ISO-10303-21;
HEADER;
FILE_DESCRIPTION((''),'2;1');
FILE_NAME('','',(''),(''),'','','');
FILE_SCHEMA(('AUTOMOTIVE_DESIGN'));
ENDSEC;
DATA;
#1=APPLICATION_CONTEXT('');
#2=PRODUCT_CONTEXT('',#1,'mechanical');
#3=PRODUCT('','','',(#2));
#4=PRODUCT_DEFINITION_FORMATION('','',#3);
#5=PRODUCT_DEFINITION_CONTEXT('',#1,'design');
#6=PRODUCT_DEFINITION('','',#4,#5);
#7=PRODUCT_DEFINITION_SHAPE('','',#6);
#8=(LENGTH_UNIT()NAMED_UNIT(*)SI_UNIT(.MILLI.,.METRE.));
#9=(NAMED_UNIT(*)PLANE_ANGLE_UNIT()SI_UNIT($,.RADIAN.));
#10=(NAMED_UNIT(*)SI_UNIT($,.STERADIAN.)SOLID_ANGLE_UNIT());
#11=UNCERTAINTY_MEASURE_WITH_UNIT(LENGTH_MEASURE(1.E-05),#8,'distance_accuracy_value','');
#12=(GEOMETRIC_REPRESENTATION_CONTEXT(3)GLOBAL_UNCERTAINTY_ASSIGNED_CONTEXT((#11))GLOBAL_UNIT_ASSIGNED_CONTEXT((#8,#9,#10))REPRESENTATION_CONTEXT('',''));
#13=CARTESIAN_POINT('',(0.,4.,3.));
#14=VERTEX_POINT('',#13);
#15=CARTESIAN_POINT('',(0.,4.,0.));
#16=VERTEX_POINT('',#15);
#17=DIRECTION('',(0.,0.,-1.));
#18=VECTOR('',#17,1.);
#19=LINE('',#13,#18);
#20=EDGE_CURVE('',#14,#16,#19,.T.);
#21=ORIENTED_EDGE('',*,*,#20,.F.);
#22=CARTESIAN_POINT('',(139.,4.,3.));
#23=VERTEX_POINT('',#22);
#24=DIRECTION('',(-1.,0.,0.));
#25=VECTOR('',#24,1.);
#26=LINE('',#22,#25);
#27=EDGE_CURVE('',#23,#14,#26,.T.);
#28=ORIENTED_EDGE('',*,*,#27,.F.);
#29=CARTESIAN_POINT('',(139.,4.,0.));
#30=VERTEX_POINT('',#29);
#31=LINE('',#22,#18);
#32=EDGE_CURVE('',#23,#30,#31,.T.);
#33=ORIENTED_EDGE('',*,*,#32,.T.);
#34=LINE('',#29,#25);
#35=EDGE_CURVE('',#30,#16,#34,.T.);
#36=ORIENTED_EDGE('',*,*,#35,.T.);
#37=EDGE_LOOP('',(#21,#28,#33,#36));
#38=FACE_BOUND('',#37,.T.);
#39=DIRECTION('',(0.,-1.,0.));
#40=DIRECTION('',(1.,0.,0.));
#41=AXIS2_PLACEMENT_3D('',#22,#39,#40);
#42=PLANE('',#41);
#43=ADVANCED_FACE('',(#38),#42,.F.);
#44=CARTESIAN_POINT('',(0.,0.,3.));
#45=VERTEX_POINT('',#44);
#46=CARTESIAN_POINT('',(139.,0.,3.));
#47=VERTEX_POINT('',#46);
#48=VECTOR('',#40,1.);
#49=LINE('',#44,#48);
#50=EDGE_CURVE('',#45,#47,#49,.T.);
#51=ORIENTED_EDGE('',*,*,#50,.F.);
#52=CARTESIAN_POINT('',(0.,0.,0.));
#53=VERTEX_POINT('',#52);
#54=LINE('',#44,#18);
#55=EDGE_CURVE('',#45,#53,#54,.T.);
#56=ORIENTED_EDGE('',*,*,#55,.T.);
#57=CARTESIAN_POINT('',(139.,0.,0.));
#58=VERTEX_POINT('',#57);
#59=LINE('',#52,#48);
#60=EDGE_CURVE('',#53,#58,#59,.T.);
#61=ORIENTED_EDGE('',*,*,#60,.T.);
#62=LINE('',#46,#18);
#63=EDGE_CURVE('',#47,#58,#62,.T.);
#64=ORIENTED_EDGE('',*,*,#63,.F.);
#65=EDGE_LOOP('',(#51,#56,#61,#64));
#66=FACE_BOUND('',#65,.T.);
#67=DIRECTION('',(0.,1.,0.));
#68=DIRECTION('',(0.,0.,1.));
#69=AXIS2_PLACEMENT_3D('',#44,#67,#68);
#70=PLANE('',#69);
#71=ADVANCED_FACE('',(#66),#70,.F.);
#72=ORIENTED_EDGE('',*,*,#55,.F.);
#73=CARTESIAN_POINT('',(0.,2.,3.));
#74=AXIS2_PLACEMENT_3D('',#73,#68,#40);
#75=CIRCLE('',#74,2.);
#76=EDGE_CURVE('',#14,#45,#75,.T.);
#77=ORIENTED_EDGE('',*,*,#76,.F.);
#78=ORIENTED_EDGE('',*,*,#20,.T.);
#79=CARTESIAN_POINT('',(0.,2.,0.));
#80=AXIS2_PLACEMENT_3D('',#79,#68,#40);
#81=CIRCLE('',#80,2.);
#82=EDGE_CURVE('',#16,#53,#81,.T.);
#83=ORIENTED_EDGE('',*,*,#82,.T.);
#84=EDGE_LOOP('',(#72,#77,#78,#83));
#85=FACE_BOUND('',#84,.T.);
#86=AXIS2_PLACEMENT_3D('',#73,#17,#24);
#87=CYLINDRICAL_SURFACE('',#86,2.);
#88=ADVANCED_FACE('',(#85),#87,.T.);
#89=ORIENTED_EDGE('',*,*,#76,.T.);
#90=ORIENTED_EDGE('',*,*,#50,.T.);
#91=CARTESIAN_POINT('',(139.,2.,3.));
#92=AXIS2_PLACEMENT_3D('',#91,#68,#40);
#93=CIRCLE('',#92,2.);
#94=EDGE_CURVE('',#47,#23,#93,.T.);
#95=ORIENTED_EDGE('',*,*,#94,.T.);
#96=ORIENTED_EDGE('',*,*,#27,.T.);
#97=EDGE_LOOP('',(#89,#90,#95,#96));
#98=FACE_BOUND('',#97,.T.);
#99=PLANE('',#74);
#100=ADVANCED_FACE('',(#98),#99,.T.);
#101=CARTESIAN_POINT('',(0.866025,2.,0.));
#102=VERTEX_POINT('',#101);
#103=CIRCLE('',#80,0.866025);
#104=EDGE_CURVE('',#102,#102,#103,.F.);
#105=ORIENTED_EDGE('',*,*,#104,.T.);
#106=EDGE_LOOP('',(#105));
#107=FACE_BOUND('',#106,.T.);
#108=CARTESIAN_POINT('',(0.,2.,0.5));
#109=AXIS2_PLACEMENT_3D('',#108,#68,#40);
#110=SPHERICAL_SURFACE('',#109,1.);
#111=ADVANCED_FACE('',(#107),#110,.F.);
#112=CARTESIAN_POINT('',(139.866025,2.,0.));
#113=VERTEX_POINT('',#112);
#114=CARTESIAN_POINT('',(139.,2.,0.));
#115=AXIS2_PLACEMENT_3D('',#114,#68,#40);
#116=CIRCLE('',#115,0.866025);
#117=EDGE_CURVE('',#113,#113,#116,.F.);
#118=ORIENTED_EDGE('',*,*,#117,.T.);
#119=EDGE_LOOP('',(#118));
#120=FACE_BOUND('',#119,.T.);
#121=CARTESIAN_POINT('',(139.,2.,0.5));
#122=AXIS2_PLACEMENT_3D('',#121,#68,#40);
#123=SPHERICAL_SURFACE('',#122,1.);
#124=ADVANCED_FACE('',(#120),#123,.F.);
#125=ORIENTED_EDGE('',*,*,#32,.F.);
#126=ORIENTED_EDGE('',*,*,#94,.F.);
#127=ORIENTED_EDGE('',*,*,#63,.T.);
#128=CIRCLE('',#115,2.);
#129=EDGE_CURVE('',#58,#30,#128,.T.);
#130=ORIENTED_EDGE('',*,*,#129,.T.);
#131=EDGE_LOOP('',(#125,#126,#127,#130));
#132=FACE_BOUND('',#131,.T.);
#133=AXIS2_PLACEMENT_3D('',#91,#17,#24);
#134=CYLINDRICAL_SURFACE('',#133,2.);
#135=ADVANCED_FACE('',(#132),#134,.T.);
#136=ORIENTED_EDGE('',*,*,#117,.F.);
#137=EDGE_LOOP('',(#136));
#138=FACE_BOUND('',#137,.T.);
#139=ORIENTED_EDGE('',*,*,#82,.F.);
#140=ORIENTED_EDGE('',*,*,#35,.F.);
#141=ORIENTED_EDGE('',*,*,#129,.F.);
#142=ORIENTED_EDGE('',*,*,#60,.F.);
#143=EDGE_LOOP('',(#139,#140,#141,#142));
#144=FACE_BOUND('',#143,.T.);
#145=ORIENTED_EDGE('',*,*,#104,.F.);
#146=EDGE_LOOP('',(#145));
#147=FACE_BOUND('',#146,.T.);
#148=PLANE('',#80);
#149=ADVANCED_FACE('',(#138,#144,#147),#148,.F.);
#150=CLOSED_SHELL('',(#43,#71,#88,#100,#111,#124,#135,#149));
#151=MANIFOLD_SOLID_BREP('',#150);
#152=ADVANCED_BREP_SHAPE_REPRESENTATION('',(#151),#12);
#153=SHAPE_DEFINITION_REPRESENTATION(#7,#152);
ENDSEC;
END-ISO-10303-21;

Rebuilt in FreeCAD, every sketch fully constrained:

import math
import FreeCAD as App
import Part
import Sketcher

V = App.Vector

doc = App.newDocument("Part")
body = doc.addObject("PartDesign::Body", "Body")

sketch1 = body.newObject("Sketcher::SketchObject", "Sketch")
sketch1.AttachmentSupport = (doc.getObject("XY_Plane"), [""])
sketch1.MapMode = "FlatFace"
sketch1.addGeometry([
    Part.LineSegment(V(0, 0, 0), V(139, 0, 0)),
    Part.ArcOfCircle(Part.Circle(V(139, 2, 0), V(0, 0, 1), 2), math.radians(-90), math.radians(90)),
    Part.LineSegment(V(139, 4, 0), V(0, 4, 0)),
    Part.ArcOfCircle(Part.Circle(V(0, 2, 0), V(0, 0, 1), 2), math.radians(90), math.radians(270)),
], False)
sketch1.addConstraint([
    Sketcher.Constraint("Tangent", 0, 2, 1, 1),
    Sketcher.Constraint("Tangent", 1, 2, 2, 1),
    Sketcher.Constraint("Tangent", 2, 2, 3, 1),
    Sketcher.Constraint("Tangent", 3, 2, 0, 1),
    Sketcher.Constraint("Horizontal", 0),
    Sketcher.Constraint("Horizontal", 2),
    Sketcher.Constraint("Coincident", 3, 2, -1, 1),
    Sketcher.Constraint("Radius", 1, 2.0),
    Sketcher.Constraint("DistanceX", 0, 1, 0, 2, 139.0),
])
pad1 = body.newObject("PartDesign::Pad", "Pad")
pad1.Profile = sketch1
pad1.Length = 3

sketch2 = body.newObject("Sketcher::SketchObject", "Sketch001")
sketch2.AttachmentSupport = (doc.getObject("XZ_Plane"), [""])
sketch2.MapMode = "FlatFace"
sketch2.AttachmentOffset = App.Placement(V(0, 0, -2), App.Rotation())
sketch2.addGeometry([
    Part.ArcOfCircle(Part.Circle(V(0, 0.5, 0), V(0, 0, 1), 1), math.radians(-90), math.radians(90)),
    Part.LineSegment(V(0, 1.5, 0), V(0, -0.5, 0)),
], False)
sketch2.addConstraint([
    Sketcher.Constraint("Coincident", 0, 1, 1, 2),
    Sketcher.Constraint("Coincident", 1, 1, 0, 2),
    Sketcher.Constraint("Vertical", 1),
    Sketcher.Constraint("PointOnObject", 0, 3, -2),
    Sketcher.Constraint("PointOnObject", 0, 1, -2),
    Sketcher.Constraint("Radius", 0, 1.0),
    Sketcher.Constraint("DistanceY", -1, 1, 0, 3, 0.5),
])
groove = body.newObject("PartDesign::Groove", "Groove")
groove.Profile = sketch2
groove.ReferenceAxis = (sketch2, ["V_Axis"])
groove.Angle = 360

sketch3 = body.newObject("Sketcher::SketchObject", "Sketch002")
sketch3.AttachmentSupport = (doc.getObject("XZ_Plane"), [""])
sketch3.MapMode = "FlatFace"
sketch3.AttachmentOffset = App.Placement(V(0, 0, -2), App.Rotation())
sketch3.addGeometry([
    Part.ArcOfCircle(Part.Circle(V(139, 0.5, 0), V(0, 0, 1), 1), math.radians(-90), math.radians(90)),
    Part.LineSegment(V(139, 1.5, 0), V(139, -0.5, 0)),
], False)
sketch3.addGeometry(Part.LineSegment(V(139, 1.5, 0), V(139, -0.5, 0)), True)
sketch3.addConstraint([
    Sketcher.Constraint("Coincident", 0, 1, 1, 2),
    Sketcher.Constraint("Coincident", 1, 1, 0, 2),
    Sketcher.Constraint("Vertical", 1),
    Sketcher.Constraint("Vertical", 2),
    Sketcher.Constraint("Coincident", 2, 1, 1, 1),
    Sketcher.Constraint("Equal", 1, 2),
    Sketcher.Constraint("Radius", 0, 1.0),
    Sketcher.Constraint("DistanceX", -1, 1, 0, 3, 139.0),
    Sketcher.Constraint("DistanceX", -1, 1, 0, 1, 139.0),
    Sketcher.Constraint("DistanceY", -1, 1, 0, 3, 0.5),
])
groove2 = body.newObject("PartDesign::Groove", "Groove001")
groove2.Profile = sketch3
groove2.ReferenceAxis = (sketch3, ["Axis0"])
groove2.Angle = 360

doc.recompute()
